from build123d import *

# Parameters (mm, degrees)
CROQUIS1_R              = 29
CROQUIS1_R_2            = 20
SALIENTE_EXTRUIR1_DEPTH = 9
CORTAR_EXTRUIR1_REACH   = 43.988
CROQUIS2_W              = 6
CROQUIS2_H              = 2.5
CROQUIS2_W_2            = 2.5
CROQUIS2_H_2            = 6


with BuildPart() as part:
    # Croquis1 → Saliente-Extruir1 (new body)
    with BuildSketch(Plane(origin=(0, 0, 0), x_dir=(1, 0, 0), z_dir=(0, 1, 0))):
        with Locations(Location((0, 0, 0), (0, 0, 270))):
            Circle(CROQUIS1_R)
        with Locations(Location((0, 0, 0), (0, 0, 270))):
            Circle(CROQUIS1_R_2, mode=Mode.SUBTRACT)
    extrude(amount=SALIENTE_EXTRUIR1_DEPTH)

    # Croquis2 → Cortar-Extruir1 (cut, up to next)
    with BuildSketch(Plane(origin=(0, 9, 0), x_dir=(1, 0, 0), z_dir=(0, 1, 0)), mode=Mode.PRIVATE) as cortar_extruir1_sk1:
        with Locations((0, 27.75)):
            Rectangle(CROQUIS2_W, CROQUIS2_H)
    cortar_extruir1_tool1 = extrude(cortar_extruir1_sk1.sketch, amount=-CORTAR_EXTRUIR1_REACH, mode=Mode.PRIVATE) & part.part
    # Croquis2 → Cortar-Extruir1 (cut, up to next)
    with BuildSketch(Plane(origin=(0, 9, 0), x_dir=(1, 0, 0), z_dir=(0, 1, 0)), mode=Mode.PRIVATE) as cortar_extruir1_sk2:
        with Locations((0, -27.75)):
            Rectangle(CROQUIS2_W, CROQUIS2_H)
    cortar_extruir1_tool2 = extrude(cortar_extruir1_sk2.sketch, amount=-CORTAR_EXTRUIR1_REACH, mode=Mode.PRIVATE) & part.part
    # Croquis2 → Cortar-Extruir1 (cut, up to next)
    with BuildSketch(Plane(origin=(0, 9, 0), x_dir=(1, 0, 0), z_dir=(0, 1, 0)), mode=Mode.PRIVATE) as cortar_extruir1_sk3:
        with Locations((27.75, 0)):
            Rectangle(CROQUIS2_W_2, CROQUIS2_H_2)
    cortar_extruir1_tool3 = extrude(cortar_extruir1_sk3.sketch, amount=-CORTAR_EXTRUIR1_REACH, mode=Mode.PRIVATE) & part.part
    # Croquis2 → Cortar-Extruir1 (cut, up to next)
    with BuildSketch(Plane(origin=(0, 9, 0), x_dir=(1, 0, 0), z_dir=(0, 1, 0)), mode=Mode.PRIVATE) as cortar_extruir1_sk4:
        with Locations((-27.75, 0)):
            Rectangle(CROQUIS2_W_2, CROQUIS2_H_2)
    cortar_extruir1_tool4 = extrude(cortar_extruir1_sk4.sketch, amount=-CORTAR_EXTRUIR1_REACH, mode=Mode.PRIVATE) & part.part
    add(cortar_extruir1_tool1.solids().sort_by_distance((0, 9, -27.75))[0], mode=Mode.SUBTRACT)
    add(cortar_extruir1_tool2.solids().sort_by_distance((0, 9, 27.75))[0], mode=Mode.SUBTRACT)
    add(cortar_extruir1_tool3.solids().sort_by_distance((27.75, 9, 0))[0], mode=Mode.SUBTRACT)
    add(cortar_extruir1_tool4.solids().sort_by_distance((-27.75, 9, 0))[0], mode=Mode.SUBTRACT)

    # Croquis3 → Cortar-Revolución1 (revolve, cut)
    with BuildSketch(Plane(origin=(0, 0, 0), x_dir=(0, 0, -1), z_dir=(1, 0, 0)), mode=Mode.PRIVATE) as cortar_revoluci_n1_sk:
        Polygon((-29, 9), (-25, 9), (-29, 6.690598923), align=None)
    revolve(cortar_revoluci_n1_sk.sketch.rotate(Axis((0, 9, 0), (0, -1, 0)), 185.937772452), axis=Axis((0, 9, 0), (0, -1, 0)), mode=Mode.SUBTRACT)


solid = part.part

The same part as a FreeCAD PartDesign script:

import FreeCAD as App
import Part
import Sketcher
from FreeCAD import Vector
Q = App.Units.Quantity


def add_polygon(sketch, points):
    """Adds a closed chain of lines whose ends are joined by coincident constraints."""
    first, n = sketch.GeometryCount, len(points)
    for a, b in zip(points, points[1:] + points[:1]):
        sketch.addGeometry(Part.LineSegment(App.Vector(*a, 0), App.Vector(*b, 0)), False)
    for i in range(n):
        sketch.addConstraint(Sketcher.Constraint("Coincident", first + i, 2, first + (i + 1) % n, 1))

doc = App.newDocument("Part")
body = doc.addObject("PartDesign::Body", "Body")

# Sketch on XZ plane
sketch1 = body.newObject("Sketcher::SketchObject", "Sketch")
sketch1.AttachmentSupport = (doc.getObject("XZ_Plane"), [""])
sketch1.MapMode = "FlatFace"
sketch1.addGeometry(Part.Circle(Vector(0, 0, 0), Vector(0, 0, 1), 29), False)
sketch1.addGeometry(Part.Circle(Vector(0, 0, 0), Vector(0, 0, 1), 20), False)
sketch1.addConstraint(Sketcher.Constraint("Coincident", 0, 3, -1, 1))
sketch1.addConstraint(Sketcher.Constraint("Coincident", 1, 3, -1, 1))
sketch1.addConstraint(Sketcher.Constraint("Diameter", 0, Q("58 mm")))
sketch1.addConstraint(Sketcher.Constraint("Diameter", 1, Q("40 mm")))
pad1 = body.newObject("PartDesign::Pad", "Pad")
pad1.Profile = sketch1
pad1.Length = 9
pad1.Reversed = True

# Sketch on XZ plane
sketch2 = body.newObject("Sketcher::SketchObject", "Sketch001")
sketch2.AttachmentSupport = (doc.getObject("XZ_Plane"), [""])
sketch2.MapMode = "FlatFace"
sketch2.AttachmentOffset = App.Placement(Vector(0, 0, -9), App.Rotation())
add_polygon(sketch2, [(-3, -29), (-3, -26.5), (3, -26.5), (3, -29)])  # lines 0-3
sketch2.addConstraint(Sketcher.Constraint("Vertical", 0))
sketch2.addConstraint(Sketcher.Constraint("Horizontal", 1))
sketch2.addConstraint(Sketcher.Constraint("Vertical", 2))
sketch2.addConstraint(Sketcher.Constraint("Horizontal", 3))
sketch2.addConstraint(Sketcher.Constraint("DistanceX", 1, 1, 1, 2, Q("6 mm")))
sketch2.addConstraint(Sketcher.Constraint("DistanceY", 0, 1, 0, 2, Q("2.5 mm")))
sketch2.addConstraint(Sketcher.Constraint("DistanceX", 0, 2, -1, 1, Q("3 mm")))
sketch2.addConstraint(Sketcher.Constraint("DistanceY", 2, 2, -1, 1, Q("29 mm")))
pocket1 = body.newObject("PartDesign::Pocket", "Pocket")
pocket1.Profile = sketch2
pocket1.Type = "UpToFirst"
pocket1.Reversed = True

# Sketch on XZ plane
sketch3 = body.newObject("Sketcher::SketchObject", "Sketch002")
sketch3.AttachmentSupport = (doc.getObject("XZ_Plane"), [""])
sketch3.MapMode = "FlatFace"
sketch3.AttachmentOffset = App.Placement(Vector(0, 0, -9), App.Rotation())
add_polygon(sketch3, [(-3, 26.5), (-3, 29), (3, 29), (3, 26.5)])  # lines 0-3
sketch3.addConstraint(Sketcher.Constraint("Vertical", 0))
sketch3.addConstraint(Sketcher.Constraint("Horizontal", 1))
sketch3.addConstraint(Sketcher.Constraint("Vertical", 2))
sketch3.addConstraint(Sketcher.Constraint("Horizontal", 3))
sketch3.addConstraint(Sketcher.Constraint("DistanceX", 1, 1, 1, 2, Q("6 mm")))
sketch3.addConstraint(Sketcher.Constraint("DistanceY", 0, 1, 0, 2, Q("2.5 mm")))
sketch3.addConstraint(Sketcher.Constraint("DistanceX", 0, 2, -1, 1, Q("3 mm")))
sketch3.addConstraint(Sketcher.Constraint("DistanceY", -1, 1, 0, 2, Q("29 mm")))
pocket2 = body.newObject("PartDesign::Pocket", "Pocket001")
pocket2.Profile = sketch3
pocket2.Type = "UpToFirst"
pocket2.Reversed = True

# Sketch on XZ plane
sketch4 = body.newObject("Sketcher::SketchObject", "Sketch003")
sketch4.AttachmentSupport = (doc.getObject("XZ_Plane"), [""])
sketch4.MapMode = "FlatFace"
sketch4.AttachmentOffset = App.Placement(Vector(0, 0, -9), App.Rotation())
add_polygon(sketch4, [(26.5, -3), (26.5, 3), (29, 3), (29, -3)])  # lines 0-3
sketch4.addConstraint(Sketcher.Constraint("Vertical", 0))
sketch4.addConstraint(Sketcher.Constraint("Horizontal", 1))
sketch4.addConstraint(Sketcher.Constraint("Vertical", 2))
sketch4.addConstraint(Sketcher.Constraint("Horizontal", 3))
sketch4.addConstraint(Sketcher.Constraint("DistanceY", 0, 1, 0, 2, Q("6 mm")))
sketch4.addConstraint(Sketcher.Constraint("DistanceX", 1, 1, 1, 2, Q("2.5 mm")))
sketch4.addConstraint(Sketcher.Constraint("DistanceY", -1, 1, 0, 2, Q("3 mm")))
sketch4.addConstraint(Sketcher.Constraint("DistanceX", -1, 1, 1, 2, Q("29 mm")))
pocket3 = body.newObject("PartDesign::Pocket", "Pocket002")
pocket3.Profile = sketch4
pocket3.Type = "UpToFirst"
pocket3.Reversed = True

# Sketch on XZ plane
sketch5 = body.newObject("Sketcher::SketchObject", "Sketch004")
sketch5.AttachmentSupport = (doc.getObject("XZ_Plane"), [""])
sketch5.MapMode = "FlatFace"
sketch5.AttachmentOffset = App.Placement(Vector(0, 0, -9), App.Rotation())
add_polygon(sketch5, [(-29, -3), (-29, 3), (-26.5, 3), (-26.5, -3)])  # lines 0-3
sketch5.addConstraint(Sketcher.Constraint("Vertical", 0))
sketch5.addConstraint(Sketcher.Constraint("Horizontal", 1))
sketch5.addConstraint(Sketcher.Constraint("Vertical", 2))
sketch5.addConstraint(Sketcher.Constraint("Horizontal", 3))
sketch5.addConstraint(Sketcher.Constraint("DistanceY", 0, 1, 0, 2, Q("6 mm")))
sketch5.addConstraint(Sketcher.Constraint("DistanceX", 1, 1, 1, 2, Q("2.5 mm")))
sketch5.addConstraint(Sketcher.Constraint("DistanceX", 0, 2, -1, 1, Q("29 mm")))
sketch5.addConstraint(Sketcher.Constraint("DistanceY", -1, 1, 0, 2, Q("3 mm")))
pocket4 = body.newObject("PartDesign::Pocket", "Pocket003")
pocket4.Profile = sketch5
pocket4.Type = "UpToFirst"
pocket4.Reversed = True

# Sketch on YZ plane
sketch6 = body.newObject("Sketcher::SketchObject", "Sketch005")
sketch6.AttachmentSupport = (doc.getObject("YZ_Plane"), [""])
sketch6.MapMode = "FlatFace"
add_polygon(sketch6, [(9, 25), (9, 29), (6.7, 29)])  # lines 0-2
sketch6.addConstraint(Sketcher.Constraint("Vertical", 0))
sketch6.addConstraint(Sketcher.Constraint("Horizontal", 1))
sketch6.addConstraint(Sketcher.Constraint("DistanceY", 0, 1, 0, 2, Q("4 mm")))
sketch6.addConstraint(Sketcher.Constraint("Angle", 2, Q("-60 deg")))
sketch6.addConstraint(Sketcher.Constraint("DistanceX", -1, 1, 0, 2, Q("9 mm")))
sketch6.addConstraint(Sketcher.Constraint("DistanceY", -1, 1, 0, 2, Q("29 mm")))
groove = body.newObject("PartDesign::Groove", "Groove")
groove.Profile = sketch6
groove.ReferenceAxis = (sketch6, ["H_Axis"])
groove.Angle = 360

doc.recompute()
